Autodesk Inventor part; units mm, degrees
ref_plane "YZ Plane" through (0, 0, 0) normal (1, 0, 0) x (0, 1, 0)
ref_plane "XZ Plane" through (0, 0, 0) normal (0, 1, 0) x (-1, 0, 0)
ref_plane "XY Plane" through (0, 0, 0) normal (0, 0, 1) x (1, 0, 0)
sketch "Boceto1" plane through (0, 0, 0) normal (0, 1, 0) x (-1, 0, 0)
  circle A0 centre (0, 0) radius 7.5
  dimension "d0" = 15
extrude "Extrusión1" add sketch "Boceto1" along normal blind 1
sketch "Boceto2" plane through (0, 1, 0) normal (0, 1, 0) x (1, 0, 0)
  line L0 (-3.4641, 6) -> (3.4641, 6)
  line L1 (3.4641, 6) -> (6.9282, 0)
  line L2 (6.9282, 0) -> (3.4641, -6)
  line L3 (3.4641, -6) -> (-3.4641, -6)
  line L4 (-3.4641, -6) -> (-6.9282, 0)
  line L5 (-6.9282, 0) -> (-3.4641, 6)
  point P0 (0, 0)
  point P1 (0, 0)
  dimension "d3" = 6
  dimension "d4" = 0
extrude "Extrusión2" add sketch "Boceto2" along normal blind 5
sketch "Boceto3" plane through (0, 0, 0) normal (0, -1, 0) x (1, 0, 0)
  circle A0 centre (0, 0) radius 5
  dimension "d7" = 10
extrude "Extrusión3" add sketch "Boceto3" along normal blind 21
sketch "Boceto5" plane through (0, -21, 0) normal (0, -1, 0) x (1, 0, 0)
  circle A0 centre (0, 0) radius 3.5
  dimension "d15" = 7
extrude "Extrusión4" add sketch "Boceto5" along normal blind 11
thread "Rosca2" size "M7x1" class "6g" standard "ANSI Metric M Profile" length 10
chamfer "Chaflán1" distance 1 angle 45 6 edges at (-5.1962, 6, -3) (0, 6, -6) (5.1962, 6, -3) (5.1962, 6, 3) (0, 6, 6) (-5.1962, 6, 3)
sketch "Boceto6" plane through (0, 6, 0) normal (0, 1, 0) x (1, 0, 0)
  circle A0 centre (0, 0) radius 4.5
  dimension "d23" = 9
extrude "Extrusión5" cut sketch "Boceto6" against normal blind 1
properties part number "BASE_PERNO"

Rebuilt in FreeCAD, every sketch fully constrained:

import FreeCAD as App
import Part
import Sketcher
from FreeCAD import Vector
Q = App.Units.Quantity


def edges_at(feature, points):
    """Names of the edges that pass closest to the given points."""
    edges = feature.Shape.Edges
    near = lambda p: min(range(len(edges)), key=lambda i: edges[i].distToShape(Part.Vertex(*p))[0])
    return sorted({f"Edge{near(p) + 1}" for p in points})

doc = App.newDocument("Part")
params = doc.addObject("Spreadsheet::Sheet", "Params")
for row, (alias, value) in enumerate([
    ("sketch1_diameter", "15 mm"),
    ("pad1_length", "1 mm"),
    ("pad2_length", "5 mm"),
    ("sketch3_diameter", "10 mm"),
    ("pad3_length", "21 mm"),
    ("sketch4_diameter", "7 mm"),
    ("pad4_length", "11 mm"),
    ("chamfer_size", "1 mm"),
    ("sketch5_diameter", "9 mm"),
    ("pocket1_length", "1 mm"),
], start=1):
    params.set(f"A{row}", alias)
    params.set(f"B{row}", "=" + value)
    params.setAlias(f"B{row}", alias)

body = doc.addObject("PartDesign::Body", "Body")

sketch1 = body.newObject("Sketcher::SketchObject", "Sketch")
sketch1.AttachmentSupport = (doc.getObject("XZ_Plane"), [""])
sketch1.MapMode = "FlatFace"
sketch1.addGeometry(Part.Circle(Vector(0, 0, 0), Vector(0, 0, 1), 7.5), False)
sketch1.addConstraint(Sketcher.Constraint("Coincident", 0, 3, -1, 1))
sketch1.addConstraint(Sketcher.Constraint("Diameter", 0, 15.0))
sketch1.setExpression("Constraints[1]", "Params.sketch1_diameter")
pad1 = body.newObject("PartDesign::Pad", "Pad")
pad1.Profile = sketch1
pad1.setExpression("Length", "Params.pad1_length")
pad1.Reversed = True

sketch2 = body.newObject("Sketcher::SketchObject", "Sketch001")
sketch2.AttachmentSupport = (doc.getObject("XZ_Plane"), [""])
sketch2.MapMode = "FlatFace"
sketch2.AttachmentOffset = App.Placement(Vector(0, 0, -1), App.Rotation())
sketch2.addGeometry(Part.LineSegment(Vector(3.4641, -6, 0), Vector(-3.4641, -6, 0)), False)
sketch2.addGeometry(Part.LineSegment(Vector(-3.4641, -6, 0), Vector(-6.9282, 0, 0)), False)
sketch2.addGeometry(Part.LineSegment(Vector(-6.9282, 0, 0), Vector(-3.4641, 6, 0)), False)
sketch2.addGeometry(Part.LineSegment(Vector(-3.4641, 6, 0), Vector(3.4641, 6, 0)), False)
sketch2.addGeometry(Part.LineSegment(Vector(3.4641, 6, 0), Vector(6.9282, 0, 0)), False)
sketch2.addGeometry(Part.LineSegment(Vector(6.9282, 0, 0), Vector(3.4641, -6, 0)), False)
sketch2.addConstraint(Sketcher.Constraint("Coincident", 0, 2, 1, 1))
sketch2.addConstraint(Sketcher.Constraint("Coincident", 1, 2, 2, 1))
sketch2.addConstraint(Sketcher.Constraint("Coincident", 2, 2, 3, 1))
sketch2.addConstraint(Sketcher.Constraint("Coincident", 3, 2, 4, 1))
sketch2.addConstraint(Sketcher.Constraint("Coincident", 4, 2, 5, 1))
sketch2.addConstraint(Sketcher.Constraint("Coincident", 5, 2, 0, 1))
sketch2.addConstraint(Sketcher.Constraint("Horizontal", 0))
sketch2.addConstraint(Sketcher.Constraint("Horizontal", 3))
sketch2.addConstraint(Sketcher.Constraint("Symmetric", 0, 2, 3, 2, -1, 1))
sketch2.addConstraint(Sketcher.Constraint("Symmetric", 1, 2, 4, 2, -1, 1))
sketch2.addConstraint(Sketcher.Constraint("PointOnObject", 1, 2, -1))
sketch2.addConstraint(Sketcher.Constraint("Parallel", 2, 5))
sketch2.addConstraint(Sketcher.Constraint("Vertical", 0, 2, 2, 2))
sketch2.addConstraint(Sketcher.Constraint("DistanceY", 0, 2, -1, 1, 6.0))
sketch2.addConstraint(Sketcher.Constraint("Angle", 1, Q("120 deg")))
sketch2.addConstraint(Sketcher.Constraint("DistanceX", 0, 2, 0, 1, 6.9282))
pad2 = body.newObject("PartDesign::Pad", "Pad001")
pad2.Profile = sketch2
pad2.setExpression("Length", "Params.pad2_length")
pad2.Reversed = True

sketch3 = body.newObject("Sketcher::SketchObject", "Sketch002")
sketch3.AttachmentSupport = (doc.getObject("XZ_Plane"), [""])
sketch3.MapMode = "FlatFace"
sketch3.addGeometry(Part.Circle(Vector(0, 0, 0), Vector(0, 0, 1), 5), False)
sketch3.addConstraint(Sketcher.Constraint("Coincident", 0, 3, -1, 1))
sketch3.addConstraint(Sketcher.Constraint("Diameter", 0, 10.0))
sketch3.setExpression("Constraints[1]", "Params.sketch3_diameter")
pad3 = body.newObject("PartDesign::Pad", "Pad002")
pad3.Profile = sketch3
pad3.setExpression("Length", "Params.pad3_length")

sketch4 = body.newObject("Sketcher::SketchObject", "Sketch003")
sketch4.AttachmentSupport = (doc.getObject("XZ_Plane"), [""])
sketch4.MapMode = "FlatFace"
sketch4.AttachmentOffset = App.Placement(Vector(0, 0, 21), App.Rotation())
sketch4.addGeometry(Part.Circle(Vector(0, 0, 0), Vector(0, 0, 1), 3.5), False)
sketch4.addConstraint(Sketcher.Constraint("Coincident", 0, 3, -1, 1))
sketch4.addConstraint(Sketcher.Constraint("Diameter", 0, 7.0))
sketch4.setExpression("Constraints[1]", "Params.sketch4_diameter")
pad4 = body.newObject("PartDesign::Pad", "Pad003")
pad4.Profile = sketch4
pad4.setExpression("Length", "Params.pad4_length")
doc.recompute()

chamfer = body.newObject("PartDesign::Chamfer", "Chamfer")
chamfer.Base = (pad4, edges_at(pad4, [
    (-5.196, 6, -3),
    (0, 6, -6),
    (5.196, 6, -3),
    (5.196, 6, 3),
    (0, 6, 6),
    (-5.196, 6, 3),
]))
chamfer.setExpression("Size", "Params.chamfer_size")

sketch5 = body.newObject("Sketcher::SketchObject", "Sketch004")
sketch5.AttachmentSupport = (doc.getObject("XZ_Plane"), [""])
sketch5.MapMode = "FlatFace"
sketch5.AttachmentOffset = App.Placement(Vector(0, 0, -6), App.Rotation())
sketch5.addGeometry(Part.Circle(Vector(0, 0, 0), Vector(0, 0, 1), 4.5), False)
sketch5.addConstraint(Sketcher.Constraint("Coincident", 0, 3, -1, 1))
sketch5.addConstraint(Sketcher.Constraint("Diameter", 0, 9.0))
sketch5.setExpression("Constraints[1]", "Params.sketch5_diameter")
pocket1 = body.newObject("PartDesign::Pocket", "Pocket")
pocket1.Profile = sketch5
pocket1.setExpression("Length", "Params.pocket1_length")
pocket1.Reversed = True

doc.recompute()
